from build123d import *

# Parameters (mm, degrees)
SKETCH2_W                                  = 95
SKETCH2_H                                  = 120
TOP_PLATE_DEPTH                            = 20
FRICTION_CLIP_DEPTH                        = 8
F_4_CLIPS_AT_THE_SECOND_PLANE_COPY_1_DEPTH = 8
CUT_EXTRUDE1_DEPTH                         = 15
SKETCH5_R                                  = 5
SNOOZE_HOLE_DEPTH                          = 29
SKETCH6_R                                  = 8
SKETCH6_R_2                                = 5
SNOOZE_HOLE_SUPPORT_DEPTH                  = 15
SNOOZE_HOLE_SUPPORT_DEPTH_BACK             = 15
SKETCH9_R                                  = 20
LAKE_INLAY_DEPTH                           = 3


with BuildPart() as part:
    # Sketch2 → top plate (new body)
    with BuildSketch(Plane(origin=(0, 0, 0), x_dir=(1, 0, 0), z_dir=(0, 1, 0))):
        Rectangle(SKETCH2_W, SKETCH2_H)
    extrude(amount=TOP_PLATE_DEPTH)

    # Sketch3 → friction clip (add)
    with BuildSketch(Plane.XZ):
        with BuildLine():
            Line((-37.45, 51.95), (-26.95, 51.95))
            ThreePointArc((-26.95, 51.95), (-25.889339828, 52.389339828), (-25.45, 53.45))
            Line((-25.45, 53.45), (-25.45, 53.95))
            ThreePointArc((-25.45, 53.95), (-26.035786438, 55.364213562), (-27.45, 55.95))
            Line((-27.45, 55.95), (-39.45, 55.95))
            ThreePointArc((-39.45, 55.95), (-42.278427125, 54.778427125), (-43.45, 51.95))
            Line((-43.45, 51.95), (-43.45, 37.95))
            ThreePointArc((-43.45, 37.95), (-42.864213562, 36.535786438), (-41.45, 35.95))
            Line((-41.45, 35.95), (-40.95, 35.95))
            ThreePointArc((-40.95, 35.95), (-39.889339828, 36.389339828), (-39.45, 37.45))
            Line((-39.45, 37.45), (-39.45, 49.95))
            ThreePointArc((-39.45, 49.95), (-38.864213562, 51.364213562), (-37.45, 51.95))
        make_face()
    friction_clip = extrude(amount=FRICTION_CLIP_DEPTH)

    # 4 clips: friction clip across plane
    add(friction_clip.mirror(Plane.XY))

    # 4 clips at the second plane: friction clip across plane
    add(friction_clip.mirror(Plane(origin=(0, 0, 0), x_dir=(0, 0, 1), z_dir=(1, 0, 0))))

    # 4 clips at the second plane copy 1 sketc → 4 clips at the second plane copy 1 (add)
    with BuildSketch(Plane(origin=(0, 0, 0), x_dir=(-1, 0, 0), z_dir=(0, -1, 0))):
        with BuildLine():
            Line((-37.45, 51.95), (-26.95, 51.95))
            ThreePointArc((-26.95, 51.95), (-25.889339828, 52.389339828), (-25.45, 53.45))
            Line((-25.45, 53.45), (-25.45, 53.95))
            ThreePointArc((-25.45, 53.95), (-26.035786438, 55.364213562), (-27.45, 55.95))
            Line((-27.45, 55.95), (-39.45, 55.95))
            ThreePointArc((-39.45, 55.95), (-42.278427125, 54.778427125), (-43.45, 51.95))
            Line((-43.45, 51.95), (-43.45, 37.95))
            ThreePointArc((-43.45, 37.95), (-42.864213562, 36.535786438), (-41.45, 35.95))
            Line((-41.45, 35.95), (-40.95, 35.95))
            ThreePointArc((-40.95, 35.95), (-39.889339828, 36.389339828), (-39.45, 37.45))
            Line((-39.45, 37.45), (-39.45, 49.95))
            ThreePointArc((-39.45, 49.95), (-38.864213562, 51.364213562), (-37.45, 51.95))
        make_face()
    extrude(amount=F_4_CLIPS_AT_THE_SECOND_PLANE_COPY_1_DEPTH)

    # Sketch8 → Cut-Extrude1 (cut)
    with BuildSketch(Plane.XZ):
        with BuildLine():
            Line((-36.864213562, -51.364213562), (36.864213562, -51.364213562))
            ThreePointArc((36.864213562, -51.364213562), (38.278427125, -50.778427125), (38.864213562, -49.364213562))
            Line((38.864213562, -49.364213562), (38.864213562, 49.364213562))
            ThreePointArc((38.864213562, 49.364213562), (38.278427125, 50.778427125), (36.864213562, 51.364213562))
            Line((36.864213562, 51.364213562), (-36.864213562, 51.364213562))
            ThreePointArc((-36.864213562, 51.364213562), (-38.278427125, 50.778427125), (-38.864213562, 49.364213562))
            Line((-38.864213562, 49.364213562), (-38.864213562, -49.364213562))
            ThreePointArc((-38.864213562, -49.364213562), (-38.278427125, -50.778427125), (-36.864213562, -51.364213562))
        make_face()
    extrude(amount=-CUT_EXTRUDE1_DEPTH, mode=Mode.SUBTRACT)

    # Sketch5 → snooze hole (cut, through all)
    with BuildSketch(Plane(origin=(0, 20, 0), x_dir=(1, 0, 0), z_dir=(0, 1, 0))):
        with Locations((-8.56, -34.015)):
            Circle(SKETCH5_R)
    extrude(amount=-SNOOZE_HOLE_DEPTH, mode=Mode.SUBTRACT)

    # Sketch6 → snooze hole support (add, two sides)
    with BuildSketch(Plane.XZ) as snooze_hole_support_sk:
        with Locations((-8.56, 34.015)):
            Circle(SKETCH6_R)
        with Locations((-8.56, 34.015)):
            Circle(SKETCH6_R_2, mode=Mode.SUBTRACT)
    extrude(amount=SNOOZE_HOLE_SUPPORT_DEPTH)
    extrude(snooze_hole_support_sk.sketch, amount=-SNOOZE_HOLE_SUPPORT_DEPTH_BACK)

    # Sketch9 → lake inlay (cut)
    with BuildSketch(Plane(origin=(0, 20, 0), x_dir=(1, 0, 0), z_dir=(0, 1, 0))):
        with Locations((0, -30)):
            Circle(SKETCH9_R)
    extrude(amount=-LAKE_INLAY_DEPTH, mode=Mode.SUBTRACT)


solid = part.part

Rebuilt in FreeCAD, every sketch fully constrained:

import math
import FreeCAD as App
import Part
import Sketcher

V = App.Vector

doc = App.newDocument("Part")
params = doc.addObject("Spreadsheet::Sheet", "Params")
for row, (alias, value) in enumerate([
    ("sketch1_width", "95 mm"),
    ("sketch1_height", "120 mm"),
    ("pad1_length", "20 mm"),
    ("sketch2_radius", "2 mm"),
    ("sketch2_radius2", "4 mm"),
    ("sketch2_radius3", "1.5 mm"),
    ("sketch2_width", "12 mm"),
    ("sketch2_height", "14 mm"),
    ("pad2_length", "8 mm"),
    ("sketch3_radius", "2 mm"),
    ("sketch3_radius2", "4 mm"),
    ("sketch3_radius3", "1.5 mm"),
    ("sketch3_width", "12 mm"),
    ("sketch3_height", "14 mm"),
    ("pad3_length", "8 mm"),
    ("sketch4_radius", "2 mm"),
    ("pocket1_length", "15 mm"),
    ("sketch5_diameter", "10 mm"),
    ("sketch6_diameter", "16 mm"),
    ("sketch6_diameter2", "10 mm"),
    ("pad4_length", "15 mm"),
    ("pad4_length2", "15 mm"),
    ("sketch7_diameter", "40 mm"),
    ("pocket3_length", "3 mm"),
], start=1):
    params.set(f"A{row}", alias)
    params.set(f"B{row}", "=" + value)
    params.setAlias(f"B{row}", alias)

body = doc.addObject("PartDesign::Body", "Body")

sketch1 = body.newObject("Sketcher::SketchObject", "Sketch")
sketch1.AttachmentSupport = (doc.getObject("XZ_Plane"), [""])
sketch1.MapMode = "FlatFace"
sketch1.addGeometry(Part.LineSegment(V(-48, -60, 0), V(-48, 60, 0)), False)
sketch1.addGeometry(Part.LineSegment(V(-48, 60, 0), V(48, 60, 0)), False)
sketch1.addGeometry(Part.LineSegment(V(48, 60, 0), V(48, -60, 0)), False)
sketch1.addGeometry(Part.LineSegment(V(48, -60, 0), V(-48, -60, 0)), False)
sketch1.addConstraint(Sketcher.Constraint("Coincident", 0, 2, 1, 1))
sketch1.addConstraint(Sketcher.Constraint("Coincident", 1, 2, 2, 1))
sketch1.addConstraint(Sketcher.Constraint("Coincident", 2, 2, 3, 1))
sketch1.addConstraint(Sketcher.Constraint("Coincident", 3, 2, 0, 1))
sketch1.addConstraint(Sketcher.Constraint("Vertical", 0))
sketch1.addConstraint(Sketcher.Constraint("Horizontal", 1))
sketch1.addConstraint(Sketcher.Constraint("Vertical", 2))
sketch1.addConstraint(Sketcher.Constraint("Horizontal", 3))
sketch1.addConstraint(Sketcher.Constraint("Symmetric", 0, 2, 2, 2, -1, 1))
sketch1.addConstraint(Sketcher.Constraint("DistanceX", 1, 1, 1, 2, 95.0))
sketch1.addConstraint(Sketcher.Constraint("DistanceY", 0, 1, 0, 2, 120.0))
sketch1.setExpression("Constraints[9]", "Params.sketch1_width")
sketch1.setExpression("Constraints[10]", "Params.sketch1_height")
pad1 = body.newObject("PartDesign::Pad", "Pad")
pad1.Profile = sketch1
pad1.setExpression("Length", "Params.pad1_length")
pad1.Reversed = True

sketch2 = body.newObject("Sketcher::SketchObject", "Sketch001")
sketch2.AttachmentSupport = (doc.getObject("XZ_Plane"), [""])
sketch2.MapMode = "FlatFace"
sketch2.addGeometry(Part.LineSegment(V(-37.5, 52, 0), V(-26.9, 52, 0)), False)
sketch2.addGeometry(Part.ArcOfCircle(Part.Circle(V(-26.9, 53.4, 0), V(0, 0, 1), 1.5), math.radians(-90), math.radians(0)), False)
sketch2.addGeometry(Part.LineSegment(V(-25.4, 53.5, 0), V(-25.4, 54, 0)), False)
sketch2.addGeometry(Part.ArcOfCircle(Part.Circle(V(-27.5, 53.9, 0), V(0, 0, 1), 2), math.radians(0), math.radians(90)), False)
sketch2.addGeometry(Part.LineSegment(V(-27.4, 56, 0), V(-39.5, 56, 0)), False)
sketch2.addGeometry(Part.ArcOfCircle(Part.Circle(V(-39.5, 52, 0), V(0, 0, 1), 4), math.radians(90), math.radians(180)), False)
sketch2.addGeometry(Part.LineSegment(V(-43.5, 52, 0), V(-43.5, 38, 0)), False)
sketch2.addGeometry(Part.ArcOfCircle(Part.Circle(V(-41.4, 38, 0), V(0, 0, 1), 2), math.radians(-180), math.radians(-90)), False)
sketch2.addGeometry(Part.LineSegment(V(-41.5, 36, 0), V(-41, 36, 0)), False)
sketch2.addGeometry(Part.ArcOfCircle(Part.Circle(V(-40.9, 37.4, 0), V(0, 0, 1), 1.5), math.radians(-90), math.radians(0)), False)
sketch2.addGeometry(Part.LineSegment(V(-39.5, 37.5, 0), V(-39.5, 50, 0)), False)
sketch2.addGeometry(Part.ArcOfCircle(Part.Circle(V(-37.4, 49.9, 0), V(0, 0, 1), 2), math.radians(90), math.radians(180)), False)
sketch2.addConstraint(Sketcher.Constraint("Tangent", 0, 2, 1, 1))
sketch2.addConstraint(Sketcher.Constraint("Tangent", 1, 2, 2, 1))
sketch2.addConstraint(Sketcher.Constraint("Tangent", 2, 2, 3, 1))
sketch2.addConstraint(Sketcher.Constraint("Tangent", 3, 2, 4, 1))
sketch2.addConstraint(Sketcher.Constraint("Tangent", 4, 2, 5, 1))
sketch2.addConstraint(Sketcher.Constraint("Tangent", 5, 2, 6, 1))
sketch2.addConstraint(Sketcher.Constraint("Tangent", 6, 2, 7, 1))
sketch2.addConstraint(Sketcher.Constraint("Tangent", 7, 2, 8, 1))
sketch2.addConstraint(Sketcher.Constraint("Tangent", 8, 2, 9, 1))
sketch2.addConstraint(Sketcher.Constraint("Tangent", 9, 2, 10, 1))
sketch2.addConstraint(Sketcher.Constraint("Tangent", 10, 2, 11, 2))
sketch2.addConstraint(Sketcher.Constraint("Tangent", 11, 1, 0, 1))
sketch2.addConstraint(Sketcher.Constraint("Horizontal", 0))
sketch2.addConstraint(Sketcher.Constraint("Vertical", 2))
sketch2.addConstraint(Sketcher.Constraint("Horizontal", 4))
sketch2.addConstraint(Sketcher.Constraint("Vertical", 6))
sketch2.addConstraint(Sketcher.Constraint("Horizontal", 8))
sketch2.addConstraint(Sketcher.Constraint("Vertical", 10))
sketch2.addConstraint(Sketcher.Constraint("Equal", 3, 7))
sketch2.addConstraint(Sketcher.Constraint("Equal", 1, 9))
sketch2.addConstraint(Sketcher.Constraint("Equal", 7, 11))
sketch2.addConstraint(Sketcher.Constraint("Horizontal", 5, 3, 0, 2))
sketch2.addConstraint(Sketcher.Constraint("Vertical", 4, 2, 9, 2))
sketch2.addConstraint(Sketcher.Constraint("Radius", 3, 2.0))
sketch2.addConstraint(Sketcher.Constraint("Radius", 5, 4.0))
sketch2.addConstraint(Sketcher.Constraint("Radius", 1, 1.5))
sketch2.addConstraint(Sketcher.Constraint("DistanceX", 4, 2, 4, 1, 12.0))
sketch2.addConstraint(Sketcher.Constraint("DistanceY", 6, 2, 6, 1, 14.0))
sketch2.addConstraint(Sketcher.Constraint("DistanceX", 1, 3, -1, 1, 26.95))
sketch2.addConstraint(Sketcher.Constraint("DistanceY", -1, 1, 1, 3, 53.45))
sketch2.setExpression("Constraints[23]", "Params.sketch2_radius")
sketch2.setExpression("Constraints[24]", "Params.sketch2_radius2")
sketch2.setExpression("Constraints[25]", "Params.sketch2_radius3")
sketch2.setExpression("Constraints[26]", "Params.sketch2_width")
sketch2.setExpression("Constraints[27]", "Params.sketch2_height")
pad2 = body.newObject("PartDesign::Pad", "Pad001")
pad2.Profile = sketch2
pad2.setExpression("Length", "Params.pad2_length")
doc.recompute()

mirrored = body.newObject("PartDesign::Mirrored", "Mirrored")
mirrored.Originals = [pad2]
mirrored.MirrorPlane = (doc.getObject("XY_Plane"), [""])
body.Tip = mirrored
doc.recompute()

mirrored2 = body.newObject("PartDesign::Mirrored", "Mirrored001")
mirrored2.Originals = [pad2]
mirrored2.MirrorPlane = (doc.getObject("YZ_Plane"), [""])
body.Tip = mirrored2

sketch3 = body.newObject("Sketcher::SketchObject", "Sketch002")
sketch3.AttachmentSupport = (doc.getObject("XZ_Plane"), [""])
sketch3.MapMode = "FlatFace"
sketch3.addGeometry(Part.LineSegment(V(37.5, -52, 0), V(26.9, -52, 0)), False)
sketch3.addGeometry(Part.ArcOfCircle(Part.Circle(V(26.9, -53.4, 0), V(0, 0, 1), 1.5), math.radians(90), math.radians(180)), False)
sketch3.addGeometry(Part.LineSegment(V(25.4, -53.5, 0), V(25.4, -54, 0)), False)
sketch3.addGeometry(Part.ArcOfCircle(Part.Circle(V(27.5, -53.9, 0), V(0, 0, 1), 2), math.radians(-180), math.radians(-90)), False)
sketch3.addGeometry(Part.LineSegment(V(27.4, -56, 0), V(39.5, -56, 0)), False)
sketch3.addGeometry(Part.ArcOfCircle(Part.Circle(V(39.5, -52, 0), V(0, 0, 1), 4), math.radians(-90), math.radians(0)), False)
sketch3.addGeometry(Part.LineSegment(V(43.5, -52, 0), V(43.5, -38, 0)), False)
sketch3.addGeometry(Part.ArcOfCircle(Part.Circle(V(41.4, -38, 0), V(0, 0, 1), 2), math.radians(0), math.radians(90)), False)
sketch3.addGeometry(Part.LineSegment(V(41.5, -36, 0), V(41, -36, 0)), False)
sketch3.addGeometry(Part.ArcOfCircle(Part.Circle(V(40.9, -37.4, 0), V(0, 0, 1), 1.5), math.radians(90), math.radians(180)), False)
sketch3.addGeometry(Part.LineSegment(V(39.5, -37.5, 0), V(39.5, -50, 0)), False)
sketch3.addGeometry(Part.ArcOfCircle(Part.Circle(V(37.4, -49.9, 0), V(0, 0, 1), 2), math.radians(-90), math.radians(0)), False)
sketch3.addConstraint(Sketcher.Constraint("Tangent", 0, 2, 1, 1))
sketch3.addConstraint(Sketcher.Constraint("Tangent", 1, 2, 2, 1))
sketch3.addConstraint(Sketcher.Constraint("Tangent", 2, 2, 3, 1))
sketch3.addConstraint(Sketcher.Constraint("Tangent", 3, 2, 4, 1))
sketch3.addConstraint(Sketcher.Constraint("Tangent", 4, 2, 5, 1))
sketch3.addConstraint(Sketcher.Constraint("Tangent", 5, 2, 6, 1))
sketch3.addConstraint(Sketcher.Constraint("Tangent", 6, 2, 7, 1))
sketch3.addConstraint(Sketcher.Constraint("Tangent", 7, 2, 8, 1))
sketch3.addConstraint(Sketcher.Constraint("Tangent", 8, 2, 9, 1))
sketch3.addConstraint(Sketcher.Constraint("Tangent", 9, 2, 10, 1))
sketch3.addConstraint(Sketcher.Constraint("Tangent", 10, 2, 11, 2))
sketch3.addConstraint(Sketcher.Constraint("Tangent", 11, 1, 0, 1))
sketch3.addConstraint(Sketcher.Constraint("Horizontal", 0))
sketch3.addConstraint(Sketcher.Constraint("Vertical", 2))
sketch3.addConstraint(Sketcher.Constraint("Horizontal", 4))
sketch3.addConstraint(Sketcher.Constraint("Vertical", 6))
sketch3.addConstraint(Sketcher.Constraint("Horizontal", 8))
sketch3.addConstraint(Sketcher.Constraint("Vertical", 10))
sketch3.addConstraint(Sketcher.Constraint("Equal", 3, 7))
sketch3.addConstraint(Sketcher.Constraint("Equal", 1, 9))
sketch3.addConstraint(Sketcher.Constraint("Equal", 7, 11))
sketch3.addConstraint(Sketcher.Constraint("Horizontal", 5, 3, 0, 2))
sketch3.addConstraint(Sketcher.Constraint("Vertical", 4, 2, 9, 2))
sketch3.addConstraint(Sketcher.Constraint("Radius", 3, 2.0))
sketch3.addConstraint(Sketcher.Constraint("Radius", 5, 4.0))
sketch3.addConstraint(Sketcher.Constraint("Radius", 1, 1.5))
sketch3.addConstraint(Sketcher.Constraint("DistanceX", 4, 1, 4, 2, 12.0))
sketch3.addConstraint(Sketcher.Constraint("DistanceY", 6, 1, 6, 2, 14.0))
sketch3.addConstraint(Sketcher.Constraint("DistanceX", -1, 1, 1, 3, 26.95))
sketch3.addConstraint(Sketcher.Constraint("DistanceY", 1, 3, -1, 1, 53.45))
sketch3.setExpression("Constraints[23]", "Params.sketch3_radius")
sketch3.setExpression("Constraints[24]", "Params.sketch3_radius2")
sketch3.setExpression("Constraints[25]", "Params.sketch3_radius3")
sketch3.setExpression("Constraints[26]", "Params.sketch3_width")
sketch3.setExpression("Constraints[27]", "Params.sketch3_height")
pad3 = body.newObject("PartDesign::Pad", "Pad002")
pad3.Profile = sketch3
pad3.setExpression("Length", "Params.pad3_length")

sketch4 = body.newObject("Sketcher::SketchObject", "Sketch003")
sketch4.AttachmentSupport = (doc.getObject("XZ_Plane"), [""])
sketch4.MapMode = "FlatFace"
sketch4.addGeometry(Part.LineSegment(V(-36.9, -51.4, 0), V(36.9, -51.4, 0)), False)
sketch4.addGeometry(Part.ArcOfCircle(Part.Circle(V(36.9, -49.4, 0), V(0, 0, 1), 2), math.radians(-90), math.radians(0)), False)
sketch4.addGeometry(Part.LineSegment(V(38.9, -49.4, 0), V(38.9, 49.4, 0)), False)
sketch4.addGeometry(Part.ArcOfCircle(Part.Circle(V(36.9, 49.4, 0), V(0, 0, 1), 2), math.radians(0), math.radians(90)), False)
sketch4.addGeometry(Part.LineSegment(V(36.9, 51.4, 0), V(-36.9, 51.4, 0)), False)
sketch4.addGeometry(Part.ArcOfCircle(Part.Circle(V(-36.9, 49.4, 0), V(0, 0, 1), 2), math.radians(90), math.radians(180)), False)
sketch4.addGeometry(Part.LineSegment(V(-38.9, 49.4, 0), V(-38.9, -49.4, 0)), False)
sketch4.addGeometry(Part.ArcOfCircle(Part.Circle(V(-36.9, -49.4, 0), V(0, 0, 1), 2), math.radians(180), math.radians(270)), False)
sketch4.addConstraint(Sketcher.Constraint("Tangent", 0, 2, 1, 1))
sketch4.addConstraint(Sketcher.Constraint("Tangent", 1, 2, 2, 1))
sketch4.addConstraint(Sketcher.Constraint("Tangent", 2, 2, 3, 1))
sketch4.addConstraint(Sketcher.Constraint("Tangent", 3, 2, 4, 1))
sketch4.addConstraint(Sketcher.Constraint("Tangent", 4, 2, 5, 1))
sketch4.addConstraint(Sketcher.Constraint("Tangent", 5, 2, 6, 1))
sketch4.addConstraint(Sketcher.Constraint("Tangent", 6, 2, 7, 1))
sketch4.addConstraint(Sketcher.Constraint("Tangent", 7, 2, 0, 1))
sketch4.addConstraint(Sketcher.Constraint("Horizontal", 0))
sketch4.addConstraint(Sketcher.Constraint("Vertical", 2))
sketch4.addConstraint(Sketcher.Constraint("Horizontal", 4))
sketch4.addConstraint(Sketcher.Constraint("Vertical", 6))
sketch4.addConstraint(Sketcher.Constraint("Equal", 1, 3))
sketch4.addConstraint(Sketcher.Constraint("Equal", 3, 5))
sketch4.addConstraint(Sketcher.Constraint("Equal", 5, 7))
sketch4.addConstraint(Sketcher.Constraint("Symmetric", 1, 3, 5, 3, -1, 1))
sketch4.addConstraint(Sketcher.Constraint("Radius", 1, 2.0))
sketch4.addConstraint(Sketcher.Constraint("DistanceX", 0, 1, 0, 2, 73.728427))
sketch4.addConstraint(Sketcher.Constraint("DistanceY", 2, 1, 2, 2, 98.728427))
sketch4.setExpression("Constraints[16]", "Params.sketch4_radius")
pocket1 = body.newObject("PartDesign::Pocket", "Pocket")
pocket1.Profile = sketch4
pocket1.setExpression("Length", "Params.pocket1_length")

sketch5 = body.newObject("Sketcher::SketchObject", "Sketch004")
sketch5.AttachmentSupport = (doc.getObject("XZ_Plane"), [""])
sketch5.MapMode = "FlatFace"
sketch5.AttachmentOffset = App.Placement(V(0, 0, -20), App.Rotation())
sketch5.addGeometry(Part.Circle(V(-9, 34, 0), V(0, 0, 1), 5), False)
sketch5.addConstraint(Sketcher.Constraint("Diameter", 0, 10.0))
sketch5.addConstraint(Sketcher.Constraint("DistanceX", 0, 3, -1, 1, 8.56))
sketch5.addConstraint(Sketcher.Constraint("DistanceY", -1, 1, 0, 3, 34.015))
sketch5.setExpression("Constraints[0]", "Params.sketch5_diameter")
pocket2 = body.newObject("PartDesign::Pocket", "Pocket001")
pocket2.Profile = sketch5
pocket2.Type = "ThroughAll"
pocket2.Reversed = True

sketch6 = body.newObject("Sketcher::SketchObject", "Sketch005")
sketch6.AttachmentSupport = (doc.getObject("XZ_Plane"), [""])
sketch6.MapMode = "FlatFace"
sketch6.addGeometry(Part.Circle(V(-9, 34, 0), V(0, 0, 1), 8), False)
sketch6.addGeometry(Part.Circle(V(-9, 34, 0), V(0, 0, 1), 5), False)
sketch6.addConstraint(Sketcher.Constraint("Coincident", 1, 3, 0, 3))
sketch6.addConstraint(Sketcher.Constraint("Diameter", 0, 16.0))
sketch6.addConstraint(Sketcher.Constraint("Diameter", 1, 10.0))
sketch6.addConstraint(Sketcher.Constraint("DistanceX", 0, 3, -1, 1, 8.56))
sketch6.addConstraint(Sketcher.Constraint("DistanceY", -1, 1, 0, 3, 34.015))
sketch6.setExpression("Constraints[1]", "Params.sketch6_diameter")
sketch6.setExpression("Constraints[2]", "Params.sketch6_diameter2")
pad4 = body.newObject("PartDesign::Pad", "Pad003")
pad4.Profile = sketch6
pad4.Type = "TwoLengths"
pad4.setExpression("Length", "Params.pad4_length")
pad4.setExpression("Length2", "Params.pad4_length2")

sketch7 = body.newObject("Sketcher::SketchObject", "Sketch006")
sketch7.AttachmentSupport = (doc.getObject("XZ_Plane"), [""])
sketch7.MapMode = "FlatFace"
sketch7.AttachmentOffset = App.Placement(V(0, 0, -20), App.Rotation())
sketch7.addGeometry(Part.Circle(V(0, 30, 0), V(0, 0, 1), 20), False)
sketch7.addConstraint(Sketcher.Constraint("PointOnObject", 0, 3, -2))
sketch7.addConstraint(Sketcher.Constraint("Diameter", 0, 40.0))
sketch7.addConstraint(Sketcher.Constraint("DistanceY", -1, 1, 0, 3, 30.0))
sketch7.setExpression("Constraints[1]", "Params.sketch7_diameter")
pocket3 = body.newObject("PartDesign::Pocket", "Pocket002")
pocket3.Profile = sketch7
pocket3.setExpression("Length", "Params.pocket3_length")
pocket3.Reversed = True

doc.recompute()
